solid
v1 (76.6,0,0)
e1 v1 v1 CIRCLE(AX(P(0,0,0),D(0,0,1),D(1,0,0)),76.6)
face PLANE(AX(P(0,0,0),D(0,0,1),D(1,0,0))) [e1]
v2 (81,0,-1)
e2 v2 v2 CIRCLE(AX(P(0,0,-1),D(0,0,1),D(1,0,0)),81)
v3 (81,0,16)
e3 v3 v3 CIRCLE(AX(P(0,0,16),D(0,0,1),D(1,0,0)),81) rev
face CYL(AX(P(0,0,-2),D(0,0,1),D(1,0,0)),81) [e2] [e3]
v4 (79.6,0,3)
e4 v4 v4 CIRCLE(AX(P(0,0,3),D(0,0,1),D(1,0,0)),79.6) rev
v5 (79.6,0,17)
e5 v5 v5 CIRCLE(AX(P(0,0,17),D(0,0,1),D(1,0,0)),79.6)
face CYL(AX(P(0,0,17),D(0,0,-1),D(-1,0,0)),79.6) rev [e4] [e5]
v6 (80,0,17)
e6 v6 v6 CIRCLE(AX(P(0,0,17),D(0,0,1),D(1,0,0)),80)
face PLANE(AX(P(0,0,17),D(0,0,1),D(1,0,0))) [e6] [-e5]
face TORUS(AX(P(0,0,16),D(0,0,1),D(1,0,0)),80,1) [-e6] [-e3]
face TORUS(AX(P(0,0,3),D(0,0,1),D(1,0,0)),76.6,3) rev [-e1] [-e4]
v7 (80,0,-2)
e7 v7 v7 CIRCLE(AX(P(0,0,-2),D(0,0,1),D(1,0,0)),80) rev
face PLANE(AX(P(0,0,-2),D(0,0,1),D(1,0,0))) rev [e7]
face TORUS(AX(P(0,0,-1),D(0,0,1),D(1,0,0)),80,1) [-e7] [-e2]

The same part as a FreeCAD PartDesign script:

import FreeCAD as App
import Part
import Sketcher

V = App.Vector
Q = App.Units.Quantity


def edges_at(feature, points):
    """Names of the edges that pass closest to the given points."""
    edges = feature.Shape.Edges
    near = lambda p: min(range(len(edges)), key=lambda i: edges[i].distToShape(Part.Vertex(*p))[0])
    return sorted({f"Edge{near(p) + 1}" for p in points})

doc = App.newDocument("Part")
params = doc.addObject("Spreadsheet::Sheet", "Params")
for row, (alias, value) in enumerate([
    ("sketch1_diameter", "162 mm"),
    ("pad1_length", "2 mm"),
    ("sketch2_diameter", "162 mm"),
    ("sketch2_diameter2", "159.2 mm"),
    ("pad2_length", "17 mm"),
    ("fillet_radius", "1 mm"),
    ("fillet2_radius", "1 mm"),
    ("fillet3_radius", "3 mm"),
], start=1):
    params.set(f"A{row}", alias)
    params.set(f"B{row}", "=" + value)
    params.setAlias(f"B{row}", alias)

body = doc.addObject("PartDesign::Body", "Body")

# Sketch on XY plane
sketch1 = body.newObject("Sketcher::SketchObject", "Sketch")
sketch1.AttachmentSupport = (doc.getObject("XY_Plane"), [""])
sketch1.MapMode = "FlatFace"
sketch1.addGeometry(Part.Circle(V(0, 0, 0), V(0, 0, 1), 81), False)
sketch1.addConstraint([
    Sketcher.Constraint("Coincident", 0, 3, -1, 1),
    Sketcher.Constraint("Diameter", 0, Q("162 mm")),
])
sketch1.setExpression("Constraints[1]", "Params.sketch1_diameter")
pad1 = body.newObject("PartDesign::Pad", "Pad")
pad1.Profile = sketch1
pad1.setExpression("Length", "Params.pad1_length")
pad1.Reversed = True

# Sketch on XY plane
sketch2 = body.newObject("Sketcher::SketchObject", "Sketch001")
sketch2.AttachmentSupport = (doc.getObject("XY_Plane"), [""])
sketch2.MapMode = "FlatFace"
sketch2.AttachmentOffset = App.Placement(V(0, 0, 17), App.Rotation())
sketch2.addGeometry([
    Part.Circle(V(0, 0, 0), V(0, 0, 1), 81),
    Part.Circle(V(0, 0, 0), V(0, 0, 1), 80),
], False)
sketch2.addConstraint([
    Sketcher.Constraint("Coincident", 0, 3, -1, 1),
    Sketcher.Constraint("Coincident", 1, 3, -1, 1),
    Sketcher.Constraint("Diameter", 0, Q("162 mm")),
    Sketcher.Constraint("Diameter", 1, Q("159.2 mm")),
])
sketch2.setExpression("Constraints[2]", "Params.sketch2_diameter")
sketch2.setExpression("Constraints[3]", "Params.sketch2_diameter2")
pad2 = body.newObject("PartDesign::Pad", "Pad001")
pad2.Profile = sketch2
pad2.setExpression("Length", "Params.pad2_length")
pad2.Reversed = True
doc.recompute()

fillet = body.newObject("PartDesign::Fillet", "Fillet")
fillet.Base = (pad2, edges_at(pad2, [(-81, 0, -2)]))
fillet.setExpression("Radius", "Params.fillet_radius")
doc.recompute()

fillet2 = body.newObject("PartDesign::Fillet", "Fillet001")
fillet2.Base = (fillet, edges_at(fillet, [(-81, 0, 17)]))
fillet2.setExpression("Radius", "Params.fillet2_radius")
doc.recompute()

fillet3 = body.newObject("PartDesign::Fillet", "Fillet002")
fillet3.Base = (fillet2, edges_at(fillet2, [(-79.6, 0, 0)]))
fillet3.setExpression("Radius", "Params.fillet3_radius")

doc.recompute()
